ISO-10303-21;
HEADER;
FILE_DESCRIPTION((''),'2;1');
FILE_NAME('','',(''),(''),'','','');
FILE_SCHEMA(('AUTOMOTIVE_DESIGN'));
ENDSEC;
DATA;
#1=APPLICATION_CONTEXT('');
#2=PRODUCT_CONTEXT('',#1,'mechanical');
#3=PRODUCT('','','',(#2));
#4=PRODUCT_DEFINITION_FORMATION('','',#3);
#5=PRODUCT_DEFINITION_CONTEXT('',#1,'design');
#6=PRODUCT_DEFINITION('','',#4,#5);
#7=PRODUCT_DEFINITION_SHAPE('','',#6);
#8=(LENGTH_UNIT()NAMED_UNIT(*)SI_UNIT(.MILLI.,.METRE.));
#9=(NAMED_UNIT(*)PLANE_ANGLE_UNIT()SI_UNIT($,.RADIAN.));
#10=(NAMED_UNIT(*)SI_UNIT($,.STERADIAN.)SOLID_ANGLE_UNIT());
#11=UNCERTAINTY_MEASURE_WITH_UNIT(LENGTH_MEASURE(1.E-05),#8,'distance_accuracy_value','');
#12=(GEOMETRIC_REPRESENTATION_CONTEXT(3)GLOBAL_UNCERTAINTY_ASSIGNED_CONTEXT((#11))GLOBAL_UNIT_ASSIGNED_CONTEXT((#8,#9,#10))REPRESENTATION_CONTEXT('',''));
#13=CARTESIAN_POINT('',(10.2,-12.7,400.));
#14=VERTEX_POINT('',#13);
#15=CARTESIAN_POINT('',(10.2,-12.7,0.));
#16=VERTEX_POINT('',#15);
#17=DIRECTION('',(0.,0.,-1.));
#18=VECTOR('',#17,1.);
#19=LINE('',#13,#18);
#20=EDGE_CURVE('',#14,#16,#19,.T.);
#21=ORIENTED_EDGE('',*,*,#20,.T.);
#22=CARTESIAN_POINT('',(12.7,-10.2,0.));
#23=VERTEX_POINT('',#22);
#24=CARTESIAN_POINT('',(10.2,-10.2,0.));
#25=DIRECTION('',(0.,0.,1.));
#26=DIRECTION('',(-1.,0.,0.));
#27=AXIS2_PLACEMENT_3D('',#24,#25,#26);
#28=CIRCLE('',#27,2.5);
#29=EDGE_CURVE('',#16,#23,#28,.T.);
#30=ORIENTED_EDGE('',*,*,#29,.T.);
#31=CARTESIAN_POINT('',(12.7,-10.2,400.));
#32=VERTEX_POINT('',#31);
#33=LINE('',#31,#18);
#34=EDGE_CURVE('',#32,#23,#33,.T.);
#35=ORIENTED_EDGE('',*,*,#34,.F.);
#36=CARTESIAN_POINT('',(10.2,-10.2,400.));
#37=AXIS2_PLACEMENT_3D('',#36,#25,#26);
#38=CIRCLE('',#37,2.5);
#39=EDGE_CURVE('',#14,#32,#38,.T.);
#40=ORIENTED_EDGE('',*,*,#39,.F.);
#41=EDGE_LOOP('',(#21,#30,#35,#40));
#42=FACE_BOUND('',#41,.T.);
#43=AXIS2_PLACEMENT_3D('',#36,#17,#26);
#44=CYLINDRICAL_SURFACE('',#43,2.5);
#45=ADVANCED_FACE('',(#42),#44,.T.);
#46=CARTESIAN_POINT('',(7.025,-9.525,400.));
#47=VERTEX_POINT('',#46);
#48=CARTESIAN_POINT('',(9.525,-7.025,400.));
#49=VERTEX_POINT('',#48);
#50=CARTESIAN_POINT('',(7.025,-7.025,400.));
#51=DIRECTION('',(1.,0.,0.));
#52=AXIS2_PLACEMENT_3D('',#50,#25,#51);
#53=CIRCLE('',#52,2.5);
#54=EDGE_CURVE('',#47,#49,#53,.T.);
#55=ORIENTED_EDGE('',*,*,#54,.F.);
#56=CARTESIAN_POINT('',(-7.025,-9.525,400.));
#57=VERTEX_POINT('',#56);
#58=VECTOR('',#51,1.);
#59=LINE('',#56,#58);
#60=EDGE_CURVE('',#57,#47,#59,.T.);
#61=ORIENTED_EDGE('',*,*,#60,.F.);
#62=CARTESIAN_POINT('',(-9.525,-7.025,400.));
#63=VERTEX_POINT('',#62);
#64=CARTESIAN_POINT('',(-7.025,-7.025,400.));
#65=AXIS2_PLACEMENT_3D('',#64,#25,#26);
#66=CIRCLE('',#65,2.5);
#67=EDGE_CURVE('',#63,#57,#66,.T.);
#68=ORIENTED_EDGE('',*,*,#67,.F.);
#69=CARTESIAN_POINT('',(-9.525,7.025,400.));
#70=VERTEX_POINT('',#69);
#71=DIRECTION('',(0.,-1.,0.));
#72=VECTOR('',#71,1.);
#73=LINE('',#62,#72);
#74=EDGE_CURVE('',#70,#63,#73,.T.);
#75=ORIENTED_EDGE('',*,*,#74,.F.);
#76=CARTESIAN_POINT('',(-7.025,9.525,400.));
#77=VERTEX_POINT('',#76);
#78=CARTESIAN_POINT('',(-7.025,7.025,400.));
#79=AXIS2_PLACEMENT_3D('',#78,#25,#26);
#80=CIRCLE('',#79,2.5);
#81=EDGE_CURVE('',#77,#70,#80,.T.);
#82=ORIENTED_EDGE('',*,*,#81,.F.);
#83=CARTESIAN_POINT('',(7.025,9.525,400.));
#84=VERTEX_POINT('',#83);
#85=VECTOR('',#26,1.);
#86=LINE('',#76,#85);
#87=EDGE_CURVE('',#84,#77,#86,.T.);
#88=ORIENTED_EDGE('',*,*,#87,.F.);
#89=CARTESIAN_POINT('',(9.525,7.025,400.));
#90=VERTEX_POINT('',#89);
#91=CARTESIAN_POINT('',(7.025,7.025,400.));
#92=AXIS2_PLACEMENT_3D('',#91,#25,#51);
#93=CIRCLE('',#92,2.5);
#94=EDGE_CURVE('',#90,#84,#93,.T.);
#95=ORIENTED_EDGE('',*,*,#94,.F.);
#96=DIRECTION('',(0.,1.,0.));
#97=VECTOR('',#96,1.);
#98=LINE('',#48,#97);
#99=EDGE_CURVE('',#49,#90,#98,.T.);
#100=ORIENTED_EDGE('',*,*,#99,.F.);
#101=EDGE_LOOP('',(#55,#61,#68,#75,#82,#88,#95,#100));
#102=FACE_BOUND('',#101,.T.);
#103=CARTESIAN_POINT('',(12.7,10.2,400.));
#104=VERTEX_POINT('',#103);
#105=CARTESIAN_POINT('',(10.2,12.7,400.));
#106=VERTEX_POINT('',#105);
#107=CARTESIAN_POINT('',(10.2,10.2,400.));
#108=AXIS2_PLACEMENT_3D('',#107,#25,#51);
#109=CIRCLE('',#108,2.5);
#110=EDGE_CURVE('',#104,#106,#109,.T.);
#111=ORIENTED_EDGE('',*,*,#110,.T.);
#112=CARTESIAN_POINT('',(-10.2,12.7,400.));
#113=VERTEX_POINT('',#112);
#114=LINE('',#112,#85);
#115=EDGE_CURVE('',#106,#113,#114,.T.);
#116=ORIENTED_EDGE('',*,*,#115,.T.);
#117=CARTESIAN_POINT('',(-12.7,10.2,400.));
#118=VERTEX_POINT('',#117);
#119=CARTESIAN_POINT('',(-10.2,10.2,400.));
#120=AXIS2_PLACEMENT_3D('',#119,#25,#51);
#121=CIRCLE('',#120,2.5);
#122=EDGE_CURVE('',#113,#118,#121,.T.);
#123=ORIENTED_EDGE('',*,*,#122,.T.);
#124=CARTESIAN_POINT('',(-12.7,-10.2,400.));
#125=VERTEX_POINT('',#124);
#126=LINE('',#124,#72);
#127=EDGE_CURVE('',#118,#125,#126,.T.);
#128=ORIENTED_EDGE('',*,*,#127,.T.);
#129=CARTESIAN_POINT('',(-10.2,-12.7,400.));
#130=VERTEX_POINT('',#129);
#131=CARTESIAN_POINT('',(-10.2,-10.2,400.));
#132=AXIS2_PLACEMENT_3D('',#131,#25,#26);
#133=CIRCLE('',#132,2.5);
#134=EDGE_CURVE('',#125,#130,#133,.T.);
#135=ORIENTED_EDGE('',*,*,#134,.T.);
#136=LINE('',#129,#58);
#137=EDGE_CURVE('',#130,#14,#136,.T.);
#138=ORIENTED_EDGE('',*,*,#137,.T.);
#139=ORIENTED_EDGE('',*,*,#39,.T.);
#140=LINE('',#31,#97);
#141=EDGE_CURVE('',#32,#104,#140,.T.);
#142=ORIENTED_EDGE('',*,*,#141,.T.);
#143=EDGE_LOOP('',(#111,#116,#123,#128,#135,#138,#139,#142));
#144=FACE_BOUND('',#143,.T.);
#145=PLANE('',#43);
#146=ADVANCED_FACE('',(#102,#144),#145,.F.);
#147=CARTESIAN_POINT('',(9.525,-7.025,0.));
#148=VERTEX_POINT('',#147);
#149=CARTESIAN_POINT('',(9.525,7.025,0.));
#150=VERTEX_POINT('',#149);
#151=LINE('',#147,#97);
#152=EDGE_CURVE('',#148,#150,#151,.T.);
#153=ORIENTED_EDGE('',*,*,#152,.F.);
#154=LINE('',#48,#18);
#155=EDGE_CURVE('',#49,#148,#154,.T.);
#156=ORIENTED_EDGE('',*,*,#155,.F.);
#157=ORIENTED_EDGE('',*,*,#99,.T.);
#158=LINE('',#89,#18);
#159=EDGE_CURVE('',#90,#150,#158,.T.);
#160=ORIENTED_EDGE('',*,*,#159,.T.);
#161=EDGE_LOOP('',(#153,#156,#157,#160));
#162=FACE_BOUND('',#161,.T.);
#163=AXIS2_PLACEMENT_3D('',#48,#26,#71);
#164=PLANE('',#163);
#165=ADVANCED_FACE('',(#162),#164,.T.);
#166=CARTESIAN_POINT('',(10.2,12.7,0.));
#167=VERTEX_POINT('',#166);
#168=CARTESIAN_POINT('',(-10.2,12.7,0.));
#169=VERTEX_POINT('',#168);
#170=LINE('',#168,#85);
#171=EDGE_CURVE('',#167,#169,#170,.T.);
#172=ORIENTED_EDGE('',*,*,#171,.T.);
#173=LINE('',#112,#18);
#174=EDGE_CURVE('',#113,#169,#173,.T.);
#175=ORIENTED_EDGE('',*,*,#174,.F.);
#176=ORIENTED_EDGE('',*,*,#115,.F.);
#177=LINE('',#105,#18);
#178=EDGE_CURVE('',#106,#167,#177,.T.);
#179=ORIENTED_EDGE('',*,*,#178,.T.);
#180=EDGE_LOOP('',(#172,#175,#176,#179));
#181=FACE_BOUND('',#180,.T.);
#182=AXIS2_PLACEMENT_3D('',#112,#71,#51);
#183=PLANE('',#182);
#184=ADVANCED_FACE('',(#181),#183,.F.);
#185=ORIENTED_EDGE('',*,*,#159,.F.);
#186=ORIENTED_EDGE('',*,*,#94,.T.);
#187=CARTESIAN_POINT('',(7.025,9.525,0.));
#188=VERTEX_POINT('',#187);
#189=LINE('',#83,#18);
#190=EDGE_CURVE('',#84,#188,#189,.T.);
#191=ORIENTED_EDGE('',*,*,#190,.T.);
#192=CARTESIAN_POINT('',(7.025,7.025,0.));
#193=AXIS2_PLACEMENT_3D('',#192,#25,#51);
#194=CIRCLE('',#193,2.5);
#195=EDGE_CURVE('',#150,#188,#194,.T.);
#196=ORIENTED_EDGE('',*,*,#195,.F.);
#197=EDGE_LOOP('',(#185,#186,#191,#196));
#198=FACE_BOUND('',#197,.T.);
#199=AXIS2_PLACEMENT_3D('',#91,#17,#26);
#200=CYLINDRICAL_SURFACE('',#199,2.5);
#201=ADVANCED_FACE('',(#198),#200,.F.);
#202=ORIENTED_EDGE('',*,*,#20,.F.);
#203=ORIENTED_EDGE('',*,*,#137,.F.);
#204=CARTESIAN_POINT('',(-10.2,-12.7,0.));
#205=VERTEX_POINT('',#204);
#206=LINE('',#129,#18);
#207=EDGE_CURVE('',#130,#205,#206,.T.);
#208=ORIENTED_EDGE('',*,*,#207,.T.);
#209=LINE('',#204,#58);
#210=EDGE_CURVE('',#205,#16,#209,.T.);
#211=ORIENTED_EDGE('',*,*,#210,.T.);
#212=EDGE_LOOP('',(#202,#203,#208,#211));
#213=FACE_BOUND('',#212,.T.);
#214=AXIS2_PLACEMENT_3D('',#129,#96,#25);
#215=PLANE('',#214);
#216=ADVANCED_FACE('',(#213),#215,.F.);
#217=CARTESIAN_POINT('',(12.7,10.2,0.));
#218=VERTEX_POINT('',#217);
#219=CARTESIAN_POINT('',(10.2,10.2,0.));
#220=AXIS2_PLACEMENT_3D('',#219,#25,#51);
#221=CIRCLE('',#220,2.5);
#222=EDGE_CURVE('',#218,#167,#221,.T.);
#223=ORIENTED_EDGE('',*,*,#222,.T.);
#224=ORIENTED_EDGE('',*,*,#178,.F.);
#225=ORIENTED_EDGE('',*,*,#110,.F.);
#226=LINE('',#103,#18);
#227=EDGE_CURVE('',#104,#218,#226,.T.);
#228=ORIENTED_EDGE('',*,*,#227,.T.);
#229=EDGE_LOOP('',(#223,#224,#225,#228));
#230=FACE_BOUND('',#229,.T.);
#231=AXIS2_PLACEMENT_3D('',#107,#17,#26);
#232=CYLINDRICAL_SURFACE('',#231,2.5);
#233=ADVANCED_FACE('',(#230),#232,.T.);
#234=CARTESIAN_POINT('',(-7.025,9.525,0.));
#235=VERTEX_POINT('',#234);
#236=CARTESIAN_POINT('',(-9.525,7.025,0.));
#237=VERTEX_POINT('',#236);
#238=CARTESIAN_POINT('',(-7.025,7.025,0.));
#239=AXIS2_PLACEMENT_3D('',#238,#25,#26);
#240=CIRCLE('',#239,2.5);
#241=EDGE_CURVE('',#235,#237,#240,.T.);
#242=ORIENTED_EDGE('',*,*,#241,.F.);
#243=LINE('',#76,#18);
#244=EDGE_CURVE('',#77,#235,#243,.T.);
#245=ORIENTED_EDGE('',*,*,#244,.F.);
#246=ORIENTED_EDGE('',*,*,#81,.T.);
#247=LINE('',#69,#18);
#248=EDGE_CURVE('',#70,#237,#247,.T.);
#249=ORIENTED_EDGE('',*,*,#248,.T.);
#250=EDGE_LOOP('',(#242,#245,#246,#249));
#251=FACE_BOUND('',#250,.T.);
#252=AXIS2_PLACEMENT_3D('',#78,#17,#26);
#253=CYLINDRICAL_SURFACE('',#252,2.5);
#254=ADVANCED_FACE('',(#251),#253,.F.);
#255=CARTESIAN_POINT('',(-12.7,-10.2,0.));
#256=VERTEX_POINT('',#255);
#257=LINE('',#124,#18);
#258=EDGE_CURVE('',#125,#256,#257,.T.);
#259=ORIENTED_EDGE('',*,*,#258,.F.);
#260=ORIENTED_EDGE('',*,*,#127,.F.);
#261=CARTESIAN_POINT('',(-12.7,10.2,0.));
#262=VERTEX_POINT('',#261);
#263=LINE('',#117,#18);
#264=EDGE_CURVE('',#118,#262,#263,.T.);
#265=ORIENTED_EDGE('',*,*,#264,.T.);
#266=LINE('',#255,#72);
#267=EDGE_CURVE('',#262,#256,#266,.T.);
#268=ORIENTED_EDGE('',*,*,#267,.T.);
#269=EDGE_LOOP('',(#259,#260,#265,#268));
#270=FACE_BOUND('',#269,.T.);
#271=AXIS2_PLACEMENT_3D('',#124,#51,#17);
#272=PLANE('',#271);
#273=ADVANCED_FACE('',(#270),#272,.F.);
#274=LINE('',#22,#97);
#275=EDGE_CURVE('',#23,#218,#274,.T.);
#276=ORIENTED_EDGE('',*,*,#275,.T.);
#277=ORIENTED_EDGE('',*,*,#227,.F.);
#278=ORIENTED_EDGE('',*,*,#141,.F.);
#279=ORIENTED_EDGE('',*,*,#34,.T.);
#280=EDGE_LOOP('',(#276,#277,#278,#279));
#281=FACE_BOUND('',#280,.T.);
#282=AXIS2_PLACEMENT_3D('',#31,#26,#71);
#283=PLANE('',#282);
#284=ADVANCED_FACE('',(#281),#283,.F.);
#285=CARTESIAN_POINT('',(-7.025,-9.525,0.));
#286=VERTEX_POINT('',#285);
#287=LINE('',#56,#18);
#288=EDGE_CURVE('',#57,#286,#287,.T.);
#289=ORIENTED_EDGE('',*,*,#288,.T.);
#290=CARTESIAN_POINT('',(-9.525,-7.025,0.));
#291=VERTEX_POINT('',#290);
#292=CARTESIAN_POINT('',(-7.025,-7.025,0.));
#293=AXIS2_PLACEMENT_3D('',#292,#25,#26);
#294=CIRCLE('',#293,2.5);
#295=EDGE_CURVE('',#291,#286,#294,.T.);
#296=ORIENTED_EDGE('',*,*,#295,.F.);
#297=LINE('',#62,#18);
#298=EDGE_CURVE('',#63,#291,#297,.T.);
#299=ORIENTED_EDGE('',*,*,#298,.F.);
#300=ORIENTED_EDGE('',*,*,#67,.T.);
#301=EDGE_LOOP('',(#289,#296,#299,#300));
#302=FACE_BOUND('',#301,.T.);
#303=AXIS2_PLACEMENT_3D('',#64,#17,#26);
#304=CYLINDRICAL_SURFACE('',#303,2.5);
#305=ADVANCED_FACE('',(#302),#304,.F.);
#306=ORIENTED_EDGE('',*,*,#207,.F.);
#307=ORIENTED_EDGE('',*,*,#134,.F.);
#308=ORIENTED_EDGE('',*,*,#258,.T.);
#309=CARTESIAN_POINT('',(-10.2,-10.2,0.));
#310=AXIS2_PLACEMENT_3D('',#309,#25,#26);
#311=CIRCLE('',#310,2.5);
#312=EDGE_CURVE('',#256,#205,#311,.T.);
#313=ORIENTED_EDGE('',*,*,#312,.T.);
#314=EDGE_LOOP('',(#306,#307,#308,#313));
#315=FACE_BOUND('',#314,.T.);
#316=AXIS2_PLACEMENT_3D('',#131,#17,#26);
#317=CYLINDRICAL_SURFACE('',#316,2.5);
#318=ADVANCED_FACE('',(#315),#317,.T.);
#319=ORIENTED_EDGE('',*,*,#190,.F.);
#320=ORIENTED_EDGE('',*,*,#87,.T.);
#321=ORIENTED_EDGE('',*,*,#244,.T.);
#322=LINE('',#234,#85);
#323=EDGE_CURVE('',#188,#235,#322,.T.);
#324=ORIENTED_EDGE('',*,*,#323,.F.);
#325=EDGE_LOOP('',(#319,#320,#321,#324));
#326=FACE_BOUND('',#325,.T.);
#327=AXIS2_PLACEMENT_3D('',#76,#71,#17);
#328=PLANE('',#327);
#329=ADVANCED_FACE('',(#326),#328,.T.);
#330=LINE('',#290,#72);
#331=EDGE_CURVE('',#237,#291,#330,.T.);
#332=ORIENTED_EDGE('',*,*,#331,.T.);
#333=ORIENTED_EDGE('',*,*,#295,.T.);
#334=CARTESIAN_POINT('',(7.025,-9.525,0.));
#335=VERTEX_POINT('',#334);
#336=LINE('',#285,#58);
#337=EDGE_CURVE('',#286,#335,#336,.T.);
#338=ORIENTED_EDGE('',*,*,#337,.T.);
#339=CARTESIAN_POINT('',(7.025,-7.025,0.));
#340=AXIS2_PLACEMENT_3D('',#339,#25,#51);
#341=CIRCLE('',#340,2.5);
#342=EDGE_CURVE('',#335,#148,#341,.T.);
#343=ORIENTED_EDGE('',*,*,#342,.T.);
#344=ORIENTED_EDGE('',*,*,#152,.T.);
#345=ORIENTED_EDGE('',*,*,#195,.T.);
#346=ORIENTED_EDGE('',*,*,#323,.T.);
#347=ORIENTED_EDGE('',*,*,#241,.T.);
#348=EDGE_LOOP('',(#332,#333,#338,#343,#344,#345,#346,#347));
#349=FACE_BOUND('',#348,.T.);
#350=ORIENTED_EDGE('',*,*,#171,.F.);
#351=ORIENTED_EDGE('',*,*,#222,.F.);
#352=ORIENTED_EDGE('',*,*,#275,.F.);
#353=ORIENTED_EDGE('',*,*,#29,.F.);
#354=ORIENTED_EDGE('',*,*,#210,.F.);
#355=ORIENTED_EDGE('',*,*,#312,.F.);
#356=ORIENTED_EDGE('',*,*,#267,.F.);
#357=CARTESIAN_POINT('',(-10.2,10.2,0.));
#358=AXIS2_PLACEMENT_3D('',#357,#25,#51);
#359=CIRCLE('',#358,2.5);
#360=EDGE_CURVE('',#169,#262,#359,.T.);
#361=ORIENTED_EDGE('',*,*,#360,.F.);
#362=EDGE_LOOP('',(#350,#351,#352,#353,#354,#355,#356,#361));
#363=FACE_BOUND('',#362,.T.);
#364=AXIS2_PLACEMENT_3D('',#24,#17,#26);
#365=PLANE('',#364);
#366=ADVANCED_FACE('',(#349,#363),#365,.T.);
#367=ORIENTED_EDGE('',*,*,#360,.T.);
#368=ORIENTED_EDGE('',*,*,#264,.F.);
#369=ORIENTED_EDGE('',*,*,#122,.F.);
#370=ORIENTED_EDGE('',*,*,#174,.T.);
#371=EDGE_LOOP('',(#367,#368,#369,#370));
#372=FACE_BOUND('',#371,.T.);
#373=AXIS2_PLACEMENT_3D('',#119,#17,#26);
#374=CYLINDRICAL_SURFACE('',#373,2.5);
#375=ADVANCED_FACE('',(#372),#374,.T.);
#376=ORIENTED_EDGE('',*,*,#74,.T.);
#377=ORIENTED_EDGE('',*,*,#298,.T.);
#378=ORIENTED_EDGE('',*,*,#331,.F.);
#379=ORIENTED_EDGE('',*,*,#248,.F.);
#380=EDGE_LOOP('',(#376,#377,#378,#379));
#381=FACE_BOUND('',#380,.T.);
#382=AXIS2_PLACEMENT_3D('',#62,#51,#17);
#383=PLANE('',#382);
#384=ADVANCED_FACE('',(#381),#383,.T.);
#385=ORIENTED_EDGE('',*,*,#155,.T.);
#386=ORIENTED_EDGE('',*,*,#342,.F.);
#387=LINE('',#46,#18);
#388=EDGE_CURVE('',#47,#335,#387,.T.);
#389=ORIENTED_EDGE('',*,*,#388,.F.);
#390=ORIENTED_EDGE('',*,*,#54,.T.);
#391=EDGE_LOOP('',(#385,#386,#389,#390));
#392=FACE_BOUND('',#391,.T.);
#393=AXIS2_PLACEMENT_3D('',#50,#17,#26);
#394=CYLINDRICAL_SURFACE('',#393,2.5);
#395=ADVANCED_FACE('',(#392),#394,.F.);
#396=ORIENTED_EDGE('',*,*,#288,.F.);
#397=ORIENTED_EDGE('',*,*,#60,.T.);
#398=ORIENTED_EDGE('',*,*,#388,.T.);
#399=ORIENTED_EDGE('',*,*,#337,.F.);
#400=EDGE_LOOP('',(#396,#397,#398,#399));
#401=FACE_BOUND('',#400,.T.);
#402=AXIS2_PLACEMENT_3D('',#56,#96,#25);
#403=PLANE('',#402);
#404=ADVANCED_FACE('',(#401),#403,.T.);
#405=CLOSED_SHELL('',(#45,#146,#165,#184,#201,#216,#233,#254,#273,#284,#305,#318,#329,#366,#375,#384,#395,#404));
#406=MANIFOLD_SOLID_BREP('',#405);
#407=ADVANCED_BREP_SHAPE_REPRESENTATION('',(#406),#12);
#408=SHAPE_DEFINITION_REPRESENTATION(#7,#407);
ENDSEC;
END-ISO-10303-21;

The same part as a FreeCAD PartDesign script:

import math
import FreeCAD as App
import Part
import Sketcher

V = App.Vector
Q = App.Units.Quantity

doc = App.newDocument("Part")
body = doc.addObject("PartDesign::Body", "Body")

# Sketch on XY plane
sketch1 = body.newObject("Sketcher::SketchObject", "Sketch")
sketch1.AttachmentSupport = (doc.getObject("XY_Plane"), [""])
sketch1.MapMode = "FlatFace"
sketch1.addGeometry([
    Part.LineSegment(V(-10.2, -12.7, 0), V(10.2, -12.7, 0)),  # 0
    Part.ArcOfCircle(Part.Circle(V(10.2, -10.2, 0), V(0, 0, 1), 2.5), math.radians(-90), math.radians(0)),  # 1
    Part.LineSegment(V(12.7, -10.2, 0), V(12.7, 10.2, 0)),  # 2
    Part.ArcOfCircle(Part.Circle(V(10.2, 10.2, 0), V(0, 0, 1), 2.5), math.radians(0), math.radians(90)),  # 3
    Part.LineSegment(V(10.2, 12.7, 0), V(-10.2, 12.7, 0)),  # 4
    Part.ArcOfCircle(Part.Circle(V(-10.2, 10.2, 0), V(0, 0, 1), 2.5), math.radians(90), math.radians(180)),  # 5
    Part.LineSegment(V(-12.7, 10.2, 0), V(-12.7, -10.2, 0)),  # 6
    Part.ArcOfCircle(Part.Circle(V(-10.2, -10.2, 0), V(0, 0, 1), 2.5), math.radians(180), math.radians(270)),  # 7
    Part.LineSegment(V(7.025, -9.525, 0), V(-7.025, -9.525, 0)),  # 8
    Part.ArcOfCircle(Part.Circle(V(-7.025, -7.025, 0), V(0, 0, 1), 2.5), math.radians(180), math.radians(270)),  # 9
    Part.LineSegment(V(-9.525, -7.025, 0), V(-9.525, 7.025, 0)),  # 10
    Part.ArcOfCircle(Part.Circle(V(-7.025, 7.025, 0), V(0, 0, 1), 2.5), math.radians(90), math.radians(180)),  # 11
    Part.LineSegment(V(-7.025, 9.525, 0), V(7.025, 9.525, 0)),  # 12
    Part.ArcOfCircle(Part.Circle(V(7.025, 7.025, 0), V(0, 0, 1), 2.5), math.radians(0), math.radians(90)),  # 13
    Part.LineSegment(V(9.525, 7.025, 0), V(9.525, -7.025, 0)),  # 14
    Part.ArcOfCircle(Part.Circle(V(7.025, -7.025, 0), V(0, 0, 1), 2.5), math.radians(-90), math.radians(0)),  # 15
], False)
sketch1.addConstraint([
    Sketcher.Constraint("Tangent", 0, 2, 1, 1),
    Sketcher.Constraint("Tangent", 1, 2, 2, 1),
    Sketcher.Constraint("Tangent", 2, 2, 3, 1),
    Sketcher.Constraint("Tangent", 3, 2, 4, 1),
    Sketcher.Constraint("Tangent", 4, 2, 5, 1),
    Sketcher.Constraint("Tangent", 5, 2, 6, 1),
    Sketcher.Constraint("Tangent", 6, 2, 7, 1),
    Sketcher.Constraint("Tangent", 7, 2, 0, 1),
    Sketcher.Constraint("Tangent", 8, 2, 9, 2),
    Sketcher.Constraint("Tangent", 9, 1, 10, 1),
    Sketcher.Constraint("Tangent", 10, 2, 11, 2),
    Sketcher.Constraint("Tangent", 11, 1, 12, 1),
    Sketcher.Constraint("Tangent", 12, 2, 13, 2),
    Sketcher.Constraint("Tangent", 13, 1, 14, 1),
    Sketcher.Constraint("Tangent", 14, 2, 15, 2),
    Sketcher.Constraint("Tangent", 15, 1, 8, 1),
    Sketcher.Constraint("Horizontal", 0),
    Sketcher.Constraint("Vertical", 2),
    Sketcher.Constraint("Horizontal", 4),
    Sketcher.Constraint("Vertical", 6),
    Sketcher.Constraint("Horizontal", 8),
    Sketcher.Constraint("Vertical", 10),
    Sketcher.Constraint("Horizontal", 12),
    Sketcher.Constraint("Vertical", 14),
    Sketcher.Constraint("Equal", 1, 3),
    Sketcher.Constraint("Equal", 3, 5),
    Sketcher.Constraint("Equal", 5, 7),
    Sketcher.Constraint("Equal", 7, 9),
    Sketcher.Constraint("Equal", 9, 11),
    Sketcher.Constraint("Equal", 11, 13),
    Sketcher.Constraint("Equal", 13, 15),
    Sketcher.Constraint("Symmetric", 1, 3, 5, 3, -1, 1),
    Sketcher.Constraint("Symmetric", 9, 3, 13, 3, -1, 1),
    Sketcher.Constraint("Equal", 4, 2),
    Sketcher.Constraint("Equal", 12, 10),
    Sketcher.Constraint("Radius", 1, Q("2.5 mm")),
    Sketcher.Constraint("DistanceX", 0, 1, 0, 2, Q("20.4 mm")),
    Sketcher.Constraint("DistanceX", 8, 2, 8, 1, Q("14.05 mm")),
])
pad1 = body.newObject("PartDesign::Pad", "Pad")
pad1.Profile = sketch1
pad1.Length = 400

doc.recompute()
